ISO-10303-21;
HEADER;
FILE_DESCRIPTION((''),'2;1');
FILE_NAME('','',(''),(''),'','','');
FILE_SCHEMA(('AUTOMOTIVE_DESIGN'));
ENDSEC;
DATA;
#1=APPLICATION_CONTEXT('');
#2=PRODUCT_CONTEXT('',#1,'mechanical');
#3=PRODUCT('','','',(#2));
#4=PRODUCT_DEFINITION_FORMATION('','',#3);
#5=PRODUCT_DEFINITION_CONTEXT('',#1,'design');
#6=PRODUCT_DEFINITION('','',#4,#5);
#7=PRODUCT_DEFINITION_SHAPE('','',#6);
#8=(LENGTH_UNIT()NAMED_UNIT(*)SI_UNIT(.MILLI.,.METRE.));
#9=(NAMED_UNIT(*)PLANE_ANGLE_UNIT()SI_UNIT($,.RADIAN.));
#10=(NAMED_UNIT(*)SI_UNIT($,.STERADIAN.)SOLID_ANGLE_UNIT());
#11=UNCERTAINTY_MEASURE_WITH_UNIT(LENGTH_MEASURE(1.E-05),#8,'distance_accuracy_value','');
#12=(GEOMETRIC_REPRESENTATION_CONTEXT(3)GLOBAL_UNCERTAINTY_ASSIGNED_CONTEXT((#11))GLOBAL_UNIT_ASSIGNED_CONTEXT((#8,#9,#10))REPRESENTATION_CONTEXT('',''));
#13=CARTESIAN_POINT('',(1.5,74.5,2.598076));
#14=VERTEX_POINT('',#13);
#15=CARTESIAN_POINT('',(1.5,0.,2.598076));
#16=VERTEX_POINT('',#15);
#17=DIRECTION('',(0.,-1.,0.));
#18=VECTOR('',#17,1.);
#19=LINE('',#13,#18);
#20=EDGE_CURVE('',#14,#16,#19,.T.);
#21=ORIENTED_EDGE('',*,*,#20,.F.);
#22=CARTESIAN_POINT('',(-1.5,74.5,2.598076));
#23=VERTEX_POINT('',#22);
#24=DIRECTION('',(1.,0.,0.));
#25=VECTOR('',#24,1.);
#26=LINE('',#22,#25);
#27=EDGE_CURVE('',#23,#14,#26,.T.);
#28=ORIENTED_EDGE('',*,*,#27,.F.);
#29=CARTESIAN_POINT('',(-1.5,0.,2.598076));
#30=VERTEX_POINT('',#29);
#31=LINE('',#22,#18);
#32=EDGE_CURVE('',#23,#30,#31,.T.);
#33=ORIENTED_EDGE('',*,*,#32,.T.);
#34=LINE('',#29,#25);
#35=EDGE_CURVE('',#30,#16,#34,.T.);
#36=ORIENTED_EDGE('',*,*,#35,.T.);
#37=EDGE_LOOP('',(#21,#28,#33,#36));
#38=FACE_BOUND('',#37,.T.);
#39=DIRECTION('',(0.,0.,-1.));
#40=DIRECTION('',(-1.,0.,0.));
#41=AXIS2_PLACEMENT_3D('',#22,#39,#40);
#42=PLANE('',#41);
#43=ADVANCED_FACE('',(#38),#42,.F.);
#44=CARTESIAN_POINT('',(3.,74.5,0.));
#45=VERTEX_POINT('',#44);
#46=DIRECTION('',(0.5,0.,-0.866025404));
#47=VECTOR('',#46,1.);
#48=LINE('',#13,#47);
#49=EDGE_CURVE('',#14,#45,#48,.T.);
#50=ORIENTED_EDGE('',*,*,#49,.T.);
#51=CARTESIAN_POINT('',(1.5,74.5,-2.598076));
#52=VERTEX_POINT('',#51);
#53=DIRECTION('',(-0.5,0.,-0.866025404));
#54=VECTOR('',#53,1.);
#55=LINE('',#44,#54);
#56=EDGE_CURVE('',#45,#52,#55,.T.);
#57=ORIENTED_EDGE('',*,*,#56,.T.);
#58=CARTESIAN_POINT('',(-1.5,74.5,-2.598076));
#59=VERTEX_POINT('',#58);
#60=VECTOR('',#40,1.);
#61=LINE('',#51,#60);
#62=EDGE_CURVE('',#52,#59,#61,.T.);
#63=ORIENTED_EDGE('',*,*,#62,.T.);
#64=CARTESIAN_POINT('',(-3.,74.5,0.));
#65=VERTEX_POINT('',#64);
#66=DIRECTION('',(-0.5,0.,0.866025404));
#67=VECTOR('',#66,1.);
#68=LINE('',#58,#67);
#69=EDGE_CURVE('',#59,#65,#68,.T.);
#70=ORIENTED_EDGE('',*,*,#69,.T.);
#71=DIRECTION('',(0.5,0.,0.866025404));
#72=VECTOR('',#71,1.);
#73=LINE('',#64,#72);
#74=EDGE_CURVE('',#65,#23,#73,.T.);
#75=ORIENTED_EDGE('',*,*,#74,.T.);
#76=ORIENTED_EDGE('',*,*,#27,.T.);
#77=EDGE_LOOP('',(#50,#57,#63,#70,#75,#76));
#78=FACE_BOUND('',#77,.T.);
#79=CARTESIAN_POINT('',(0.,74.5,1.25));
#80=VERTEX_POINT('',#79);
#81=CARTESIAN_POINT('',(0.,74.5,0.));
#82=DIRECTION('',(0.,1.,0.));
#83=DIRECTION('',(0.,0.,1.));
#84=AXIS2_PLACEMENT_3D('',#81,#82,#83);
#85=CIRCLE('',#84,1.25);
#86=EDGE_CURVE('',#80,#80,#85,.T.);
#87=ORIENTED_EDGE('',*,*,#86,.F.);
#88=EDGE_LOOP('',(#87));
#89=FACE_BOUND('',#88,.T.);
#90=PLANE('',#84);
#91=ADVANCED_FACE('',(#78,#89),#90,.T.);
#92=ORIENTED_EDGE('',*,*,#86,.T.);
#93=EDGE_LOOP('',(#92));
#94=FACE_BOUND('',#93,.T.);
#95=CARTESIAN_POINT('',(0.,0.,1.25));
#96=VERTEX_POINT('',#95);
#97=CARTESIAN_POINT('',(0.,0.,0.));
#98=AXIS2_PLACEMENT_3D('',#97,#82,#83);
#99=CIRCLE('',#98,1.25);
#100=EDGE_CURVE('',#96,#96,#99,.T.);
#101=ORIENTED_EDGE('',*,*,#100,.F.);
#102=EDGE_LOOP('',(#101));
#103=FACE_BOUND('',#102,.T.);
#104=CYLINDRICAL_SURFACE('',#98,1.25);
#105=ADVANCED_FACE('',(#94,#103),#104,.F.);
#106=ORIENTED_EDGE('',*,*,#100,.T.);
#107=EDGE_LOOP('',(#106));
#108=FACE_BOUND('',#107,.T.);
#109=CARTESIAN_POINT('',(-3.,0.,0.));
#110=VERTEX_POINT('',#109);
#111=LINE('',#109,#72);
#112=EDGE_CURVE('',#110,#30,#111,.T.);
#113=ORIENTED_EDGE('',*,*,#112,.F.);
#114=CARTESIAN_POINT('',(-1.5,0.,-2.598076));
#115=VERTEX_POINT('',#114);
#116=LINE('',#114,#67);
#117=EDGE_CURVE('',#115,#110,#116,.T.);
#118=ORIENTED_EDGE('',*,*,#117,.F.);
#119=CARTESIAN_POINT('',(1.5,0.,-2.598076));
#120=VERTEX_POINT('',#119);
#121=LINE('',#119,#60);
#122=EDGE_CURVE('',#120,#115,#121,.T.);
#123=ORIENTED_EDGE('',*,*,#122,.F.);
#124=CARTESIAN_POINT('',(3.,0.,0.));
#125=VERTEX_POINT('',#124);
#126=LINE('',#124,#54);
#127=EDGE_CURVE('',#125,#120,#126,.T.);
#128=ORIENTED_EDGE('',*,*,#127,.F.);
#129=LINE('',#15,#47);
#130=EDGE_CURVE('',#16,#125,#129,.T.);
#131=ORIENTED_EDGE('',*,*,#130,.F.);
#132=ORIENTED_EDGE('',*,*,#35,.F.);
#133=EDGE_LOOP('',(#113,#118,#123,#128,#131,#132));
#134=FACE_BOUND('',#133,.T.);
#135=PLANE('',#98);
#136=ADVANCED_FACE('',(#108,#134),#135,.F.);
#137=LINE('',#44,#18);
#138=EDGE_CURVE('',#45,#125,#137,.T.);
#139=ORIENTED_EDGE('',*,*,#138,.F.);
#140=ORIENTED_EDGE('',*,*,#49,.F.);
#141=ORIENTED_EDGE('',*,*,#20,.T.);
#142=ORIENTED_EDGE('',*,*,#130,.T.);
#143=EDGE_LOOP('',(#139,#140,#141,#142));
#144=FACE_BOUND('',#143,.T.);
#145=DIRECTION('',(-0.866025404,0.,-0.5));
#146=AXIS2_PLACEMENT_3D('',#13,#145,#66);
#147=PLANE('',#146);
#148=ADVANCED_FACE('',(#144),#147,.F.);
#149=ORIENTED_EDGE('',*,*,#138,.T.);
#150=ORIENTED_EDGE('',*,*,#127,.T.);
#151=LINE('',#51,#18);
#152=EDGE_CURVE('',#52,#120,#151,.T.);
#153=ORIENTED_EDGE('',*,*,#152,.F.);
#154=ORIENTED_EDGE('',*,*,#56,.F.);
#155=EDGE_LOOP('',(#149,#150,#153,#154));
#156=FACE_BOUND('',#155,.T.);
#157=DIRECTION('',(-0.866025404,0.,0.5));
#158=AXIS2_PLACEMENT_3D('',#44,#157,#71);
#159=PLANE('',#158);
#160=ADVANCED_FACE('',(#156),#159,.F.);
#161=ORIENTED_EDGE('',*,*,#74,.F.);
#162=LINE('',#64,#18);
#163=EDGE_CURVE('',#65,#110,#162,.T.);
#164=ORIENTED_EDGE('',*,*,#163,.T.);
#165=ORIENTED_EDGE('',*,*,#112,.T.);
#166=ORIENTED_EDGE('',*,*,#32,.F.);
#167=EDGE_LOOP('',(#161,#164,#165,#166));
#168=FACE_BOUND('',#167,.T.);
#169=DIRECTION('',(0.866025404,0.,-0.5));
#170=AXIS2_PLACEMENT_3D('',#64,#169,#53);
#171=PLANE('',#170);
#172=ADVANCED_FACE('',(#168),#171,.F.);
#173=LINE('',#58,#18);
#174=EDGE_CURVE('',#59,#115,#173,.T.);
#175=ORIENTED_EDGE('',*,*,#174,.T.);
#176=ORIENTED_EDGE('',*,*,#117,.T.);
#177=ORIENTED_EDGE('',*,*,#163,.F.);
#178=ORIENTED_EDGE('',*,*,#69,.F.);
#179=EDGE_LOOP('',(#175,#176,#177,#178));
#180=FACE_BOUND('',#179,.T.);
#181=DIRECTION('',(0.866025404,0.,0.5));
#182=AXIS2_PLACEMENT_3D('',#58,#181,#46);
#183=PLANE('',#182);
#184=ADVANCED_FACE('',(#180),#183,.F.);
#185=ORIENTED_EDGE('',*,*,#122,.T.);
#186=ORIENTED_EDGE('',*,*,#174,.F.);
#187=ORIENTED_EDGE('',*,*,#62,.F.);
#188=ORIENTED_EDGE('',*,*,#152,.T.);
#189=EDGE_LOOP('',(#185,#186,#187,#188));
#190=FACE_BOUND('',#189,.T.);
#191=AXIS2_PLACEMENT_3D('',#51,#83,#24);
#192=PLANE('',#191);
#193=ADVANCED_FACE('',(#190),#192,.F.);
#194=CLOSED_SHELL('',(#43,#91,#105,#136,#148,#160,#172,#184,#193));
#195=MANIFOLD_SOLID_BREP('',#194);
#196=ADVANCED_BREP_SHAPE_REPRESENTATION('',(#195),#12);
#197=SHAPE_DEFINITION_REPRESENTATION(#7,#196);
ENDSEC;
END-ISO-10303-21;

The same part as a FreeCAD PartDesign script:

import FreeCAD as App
import Part
import Sketcher
from FreeCAD import Vector
Q = App.Units.Quantity


def add_polygon(sketch, points):
    """Adds a closed chain of lines whose ends are joined by coincident constraints."""
    first, n = sketch.GeometryCount, len(points)
    for a, b in zip(points, points[1:] + points[:1]):
        sketch.addGeometry(Part.LineSegment(App.Vector(*a, 0), App.Vector(*b, 0)), False)
    for i in range(n):
        sketch.addConstraint(Sketcher.Constraint("Coincident", first + i, 2, first + (i + 1) % n, 1))

doc = App.newDocument("Part")
body = doc.addObject("PartDesign::Body", "Body")

sketch1 = body.newObject("Sketcher::SketchObject", "Sketch")
sketch1.AttachmentSupport = (doc.getObject("XZ_Plane"), [""])
sketch1.MapMode = "FlatFace"
add_polygon(sketch1, [(1.5, -2.6), (-1.5, -2.6), (-3, 0), (-1.5, 2.6), (1.5, 2.6), (3, 0)])
sketch1.addConstraint([
    Sketcher.Constraint("Horizontal", 0),
    Sketcher.Constraint("Horizontal", 3),
    Sketcher.Constraint("Symmetric", 0, 2, 3, 2, -1, 1),
    Sketcher.Constraint("Symmetric", 1, 2, 4, 2, -1, 1),
    Sketcher.Constraint("PointOnObject", 1, 2, -1),
    Sketcher.Constraint("Parallel", 2, 5),
    Sketcher.Constraint("Vertical", 0, 2, 2, 2),
    Sketcher.Constraint("DistanceX", 0, 2, 0, 1, 3.0),
    Sketcher.Constraint("Angle", 1, Q("120 deg")),
    Sketcher.Constraint("Distance", 1, 3.0),
])
pad1 = body.newObject("PartDesign::Pad", "Pad")
pad1.Profile = sketch1
pad1.Length = 74.5
pad1.Reversed = True

sketch2 = body.newObject("Sketcher::SketchObject", "Sketch001")
sketch2.AttachmentSupport = (doc.getObject("XZ_Plane"), [""])
sketch2.MapMode = "FlatFace"
sketch2.AttachmentOffset = App.Placement(Vector(0, 0, -74.5), App.Rotation())
sketch2.addGeometry(Part.Circle(Vector(0, 0, 0), Vector(0, 0, 1), 1.2), False)
sketch2.addConstraint([
    Sketcher.Constraint("Coincident", 0, 3, -1, 1),
    Sketcher.Constraint("Diameter", 0, 2.5),
])
pocket1 = body.newObject("PartDesign::Pocket", "Pocket")
pocket1.Profile = sketch2
pocket1.Type = "ThroughAll"
pocket1.Reversed = True

doc.recompute()
